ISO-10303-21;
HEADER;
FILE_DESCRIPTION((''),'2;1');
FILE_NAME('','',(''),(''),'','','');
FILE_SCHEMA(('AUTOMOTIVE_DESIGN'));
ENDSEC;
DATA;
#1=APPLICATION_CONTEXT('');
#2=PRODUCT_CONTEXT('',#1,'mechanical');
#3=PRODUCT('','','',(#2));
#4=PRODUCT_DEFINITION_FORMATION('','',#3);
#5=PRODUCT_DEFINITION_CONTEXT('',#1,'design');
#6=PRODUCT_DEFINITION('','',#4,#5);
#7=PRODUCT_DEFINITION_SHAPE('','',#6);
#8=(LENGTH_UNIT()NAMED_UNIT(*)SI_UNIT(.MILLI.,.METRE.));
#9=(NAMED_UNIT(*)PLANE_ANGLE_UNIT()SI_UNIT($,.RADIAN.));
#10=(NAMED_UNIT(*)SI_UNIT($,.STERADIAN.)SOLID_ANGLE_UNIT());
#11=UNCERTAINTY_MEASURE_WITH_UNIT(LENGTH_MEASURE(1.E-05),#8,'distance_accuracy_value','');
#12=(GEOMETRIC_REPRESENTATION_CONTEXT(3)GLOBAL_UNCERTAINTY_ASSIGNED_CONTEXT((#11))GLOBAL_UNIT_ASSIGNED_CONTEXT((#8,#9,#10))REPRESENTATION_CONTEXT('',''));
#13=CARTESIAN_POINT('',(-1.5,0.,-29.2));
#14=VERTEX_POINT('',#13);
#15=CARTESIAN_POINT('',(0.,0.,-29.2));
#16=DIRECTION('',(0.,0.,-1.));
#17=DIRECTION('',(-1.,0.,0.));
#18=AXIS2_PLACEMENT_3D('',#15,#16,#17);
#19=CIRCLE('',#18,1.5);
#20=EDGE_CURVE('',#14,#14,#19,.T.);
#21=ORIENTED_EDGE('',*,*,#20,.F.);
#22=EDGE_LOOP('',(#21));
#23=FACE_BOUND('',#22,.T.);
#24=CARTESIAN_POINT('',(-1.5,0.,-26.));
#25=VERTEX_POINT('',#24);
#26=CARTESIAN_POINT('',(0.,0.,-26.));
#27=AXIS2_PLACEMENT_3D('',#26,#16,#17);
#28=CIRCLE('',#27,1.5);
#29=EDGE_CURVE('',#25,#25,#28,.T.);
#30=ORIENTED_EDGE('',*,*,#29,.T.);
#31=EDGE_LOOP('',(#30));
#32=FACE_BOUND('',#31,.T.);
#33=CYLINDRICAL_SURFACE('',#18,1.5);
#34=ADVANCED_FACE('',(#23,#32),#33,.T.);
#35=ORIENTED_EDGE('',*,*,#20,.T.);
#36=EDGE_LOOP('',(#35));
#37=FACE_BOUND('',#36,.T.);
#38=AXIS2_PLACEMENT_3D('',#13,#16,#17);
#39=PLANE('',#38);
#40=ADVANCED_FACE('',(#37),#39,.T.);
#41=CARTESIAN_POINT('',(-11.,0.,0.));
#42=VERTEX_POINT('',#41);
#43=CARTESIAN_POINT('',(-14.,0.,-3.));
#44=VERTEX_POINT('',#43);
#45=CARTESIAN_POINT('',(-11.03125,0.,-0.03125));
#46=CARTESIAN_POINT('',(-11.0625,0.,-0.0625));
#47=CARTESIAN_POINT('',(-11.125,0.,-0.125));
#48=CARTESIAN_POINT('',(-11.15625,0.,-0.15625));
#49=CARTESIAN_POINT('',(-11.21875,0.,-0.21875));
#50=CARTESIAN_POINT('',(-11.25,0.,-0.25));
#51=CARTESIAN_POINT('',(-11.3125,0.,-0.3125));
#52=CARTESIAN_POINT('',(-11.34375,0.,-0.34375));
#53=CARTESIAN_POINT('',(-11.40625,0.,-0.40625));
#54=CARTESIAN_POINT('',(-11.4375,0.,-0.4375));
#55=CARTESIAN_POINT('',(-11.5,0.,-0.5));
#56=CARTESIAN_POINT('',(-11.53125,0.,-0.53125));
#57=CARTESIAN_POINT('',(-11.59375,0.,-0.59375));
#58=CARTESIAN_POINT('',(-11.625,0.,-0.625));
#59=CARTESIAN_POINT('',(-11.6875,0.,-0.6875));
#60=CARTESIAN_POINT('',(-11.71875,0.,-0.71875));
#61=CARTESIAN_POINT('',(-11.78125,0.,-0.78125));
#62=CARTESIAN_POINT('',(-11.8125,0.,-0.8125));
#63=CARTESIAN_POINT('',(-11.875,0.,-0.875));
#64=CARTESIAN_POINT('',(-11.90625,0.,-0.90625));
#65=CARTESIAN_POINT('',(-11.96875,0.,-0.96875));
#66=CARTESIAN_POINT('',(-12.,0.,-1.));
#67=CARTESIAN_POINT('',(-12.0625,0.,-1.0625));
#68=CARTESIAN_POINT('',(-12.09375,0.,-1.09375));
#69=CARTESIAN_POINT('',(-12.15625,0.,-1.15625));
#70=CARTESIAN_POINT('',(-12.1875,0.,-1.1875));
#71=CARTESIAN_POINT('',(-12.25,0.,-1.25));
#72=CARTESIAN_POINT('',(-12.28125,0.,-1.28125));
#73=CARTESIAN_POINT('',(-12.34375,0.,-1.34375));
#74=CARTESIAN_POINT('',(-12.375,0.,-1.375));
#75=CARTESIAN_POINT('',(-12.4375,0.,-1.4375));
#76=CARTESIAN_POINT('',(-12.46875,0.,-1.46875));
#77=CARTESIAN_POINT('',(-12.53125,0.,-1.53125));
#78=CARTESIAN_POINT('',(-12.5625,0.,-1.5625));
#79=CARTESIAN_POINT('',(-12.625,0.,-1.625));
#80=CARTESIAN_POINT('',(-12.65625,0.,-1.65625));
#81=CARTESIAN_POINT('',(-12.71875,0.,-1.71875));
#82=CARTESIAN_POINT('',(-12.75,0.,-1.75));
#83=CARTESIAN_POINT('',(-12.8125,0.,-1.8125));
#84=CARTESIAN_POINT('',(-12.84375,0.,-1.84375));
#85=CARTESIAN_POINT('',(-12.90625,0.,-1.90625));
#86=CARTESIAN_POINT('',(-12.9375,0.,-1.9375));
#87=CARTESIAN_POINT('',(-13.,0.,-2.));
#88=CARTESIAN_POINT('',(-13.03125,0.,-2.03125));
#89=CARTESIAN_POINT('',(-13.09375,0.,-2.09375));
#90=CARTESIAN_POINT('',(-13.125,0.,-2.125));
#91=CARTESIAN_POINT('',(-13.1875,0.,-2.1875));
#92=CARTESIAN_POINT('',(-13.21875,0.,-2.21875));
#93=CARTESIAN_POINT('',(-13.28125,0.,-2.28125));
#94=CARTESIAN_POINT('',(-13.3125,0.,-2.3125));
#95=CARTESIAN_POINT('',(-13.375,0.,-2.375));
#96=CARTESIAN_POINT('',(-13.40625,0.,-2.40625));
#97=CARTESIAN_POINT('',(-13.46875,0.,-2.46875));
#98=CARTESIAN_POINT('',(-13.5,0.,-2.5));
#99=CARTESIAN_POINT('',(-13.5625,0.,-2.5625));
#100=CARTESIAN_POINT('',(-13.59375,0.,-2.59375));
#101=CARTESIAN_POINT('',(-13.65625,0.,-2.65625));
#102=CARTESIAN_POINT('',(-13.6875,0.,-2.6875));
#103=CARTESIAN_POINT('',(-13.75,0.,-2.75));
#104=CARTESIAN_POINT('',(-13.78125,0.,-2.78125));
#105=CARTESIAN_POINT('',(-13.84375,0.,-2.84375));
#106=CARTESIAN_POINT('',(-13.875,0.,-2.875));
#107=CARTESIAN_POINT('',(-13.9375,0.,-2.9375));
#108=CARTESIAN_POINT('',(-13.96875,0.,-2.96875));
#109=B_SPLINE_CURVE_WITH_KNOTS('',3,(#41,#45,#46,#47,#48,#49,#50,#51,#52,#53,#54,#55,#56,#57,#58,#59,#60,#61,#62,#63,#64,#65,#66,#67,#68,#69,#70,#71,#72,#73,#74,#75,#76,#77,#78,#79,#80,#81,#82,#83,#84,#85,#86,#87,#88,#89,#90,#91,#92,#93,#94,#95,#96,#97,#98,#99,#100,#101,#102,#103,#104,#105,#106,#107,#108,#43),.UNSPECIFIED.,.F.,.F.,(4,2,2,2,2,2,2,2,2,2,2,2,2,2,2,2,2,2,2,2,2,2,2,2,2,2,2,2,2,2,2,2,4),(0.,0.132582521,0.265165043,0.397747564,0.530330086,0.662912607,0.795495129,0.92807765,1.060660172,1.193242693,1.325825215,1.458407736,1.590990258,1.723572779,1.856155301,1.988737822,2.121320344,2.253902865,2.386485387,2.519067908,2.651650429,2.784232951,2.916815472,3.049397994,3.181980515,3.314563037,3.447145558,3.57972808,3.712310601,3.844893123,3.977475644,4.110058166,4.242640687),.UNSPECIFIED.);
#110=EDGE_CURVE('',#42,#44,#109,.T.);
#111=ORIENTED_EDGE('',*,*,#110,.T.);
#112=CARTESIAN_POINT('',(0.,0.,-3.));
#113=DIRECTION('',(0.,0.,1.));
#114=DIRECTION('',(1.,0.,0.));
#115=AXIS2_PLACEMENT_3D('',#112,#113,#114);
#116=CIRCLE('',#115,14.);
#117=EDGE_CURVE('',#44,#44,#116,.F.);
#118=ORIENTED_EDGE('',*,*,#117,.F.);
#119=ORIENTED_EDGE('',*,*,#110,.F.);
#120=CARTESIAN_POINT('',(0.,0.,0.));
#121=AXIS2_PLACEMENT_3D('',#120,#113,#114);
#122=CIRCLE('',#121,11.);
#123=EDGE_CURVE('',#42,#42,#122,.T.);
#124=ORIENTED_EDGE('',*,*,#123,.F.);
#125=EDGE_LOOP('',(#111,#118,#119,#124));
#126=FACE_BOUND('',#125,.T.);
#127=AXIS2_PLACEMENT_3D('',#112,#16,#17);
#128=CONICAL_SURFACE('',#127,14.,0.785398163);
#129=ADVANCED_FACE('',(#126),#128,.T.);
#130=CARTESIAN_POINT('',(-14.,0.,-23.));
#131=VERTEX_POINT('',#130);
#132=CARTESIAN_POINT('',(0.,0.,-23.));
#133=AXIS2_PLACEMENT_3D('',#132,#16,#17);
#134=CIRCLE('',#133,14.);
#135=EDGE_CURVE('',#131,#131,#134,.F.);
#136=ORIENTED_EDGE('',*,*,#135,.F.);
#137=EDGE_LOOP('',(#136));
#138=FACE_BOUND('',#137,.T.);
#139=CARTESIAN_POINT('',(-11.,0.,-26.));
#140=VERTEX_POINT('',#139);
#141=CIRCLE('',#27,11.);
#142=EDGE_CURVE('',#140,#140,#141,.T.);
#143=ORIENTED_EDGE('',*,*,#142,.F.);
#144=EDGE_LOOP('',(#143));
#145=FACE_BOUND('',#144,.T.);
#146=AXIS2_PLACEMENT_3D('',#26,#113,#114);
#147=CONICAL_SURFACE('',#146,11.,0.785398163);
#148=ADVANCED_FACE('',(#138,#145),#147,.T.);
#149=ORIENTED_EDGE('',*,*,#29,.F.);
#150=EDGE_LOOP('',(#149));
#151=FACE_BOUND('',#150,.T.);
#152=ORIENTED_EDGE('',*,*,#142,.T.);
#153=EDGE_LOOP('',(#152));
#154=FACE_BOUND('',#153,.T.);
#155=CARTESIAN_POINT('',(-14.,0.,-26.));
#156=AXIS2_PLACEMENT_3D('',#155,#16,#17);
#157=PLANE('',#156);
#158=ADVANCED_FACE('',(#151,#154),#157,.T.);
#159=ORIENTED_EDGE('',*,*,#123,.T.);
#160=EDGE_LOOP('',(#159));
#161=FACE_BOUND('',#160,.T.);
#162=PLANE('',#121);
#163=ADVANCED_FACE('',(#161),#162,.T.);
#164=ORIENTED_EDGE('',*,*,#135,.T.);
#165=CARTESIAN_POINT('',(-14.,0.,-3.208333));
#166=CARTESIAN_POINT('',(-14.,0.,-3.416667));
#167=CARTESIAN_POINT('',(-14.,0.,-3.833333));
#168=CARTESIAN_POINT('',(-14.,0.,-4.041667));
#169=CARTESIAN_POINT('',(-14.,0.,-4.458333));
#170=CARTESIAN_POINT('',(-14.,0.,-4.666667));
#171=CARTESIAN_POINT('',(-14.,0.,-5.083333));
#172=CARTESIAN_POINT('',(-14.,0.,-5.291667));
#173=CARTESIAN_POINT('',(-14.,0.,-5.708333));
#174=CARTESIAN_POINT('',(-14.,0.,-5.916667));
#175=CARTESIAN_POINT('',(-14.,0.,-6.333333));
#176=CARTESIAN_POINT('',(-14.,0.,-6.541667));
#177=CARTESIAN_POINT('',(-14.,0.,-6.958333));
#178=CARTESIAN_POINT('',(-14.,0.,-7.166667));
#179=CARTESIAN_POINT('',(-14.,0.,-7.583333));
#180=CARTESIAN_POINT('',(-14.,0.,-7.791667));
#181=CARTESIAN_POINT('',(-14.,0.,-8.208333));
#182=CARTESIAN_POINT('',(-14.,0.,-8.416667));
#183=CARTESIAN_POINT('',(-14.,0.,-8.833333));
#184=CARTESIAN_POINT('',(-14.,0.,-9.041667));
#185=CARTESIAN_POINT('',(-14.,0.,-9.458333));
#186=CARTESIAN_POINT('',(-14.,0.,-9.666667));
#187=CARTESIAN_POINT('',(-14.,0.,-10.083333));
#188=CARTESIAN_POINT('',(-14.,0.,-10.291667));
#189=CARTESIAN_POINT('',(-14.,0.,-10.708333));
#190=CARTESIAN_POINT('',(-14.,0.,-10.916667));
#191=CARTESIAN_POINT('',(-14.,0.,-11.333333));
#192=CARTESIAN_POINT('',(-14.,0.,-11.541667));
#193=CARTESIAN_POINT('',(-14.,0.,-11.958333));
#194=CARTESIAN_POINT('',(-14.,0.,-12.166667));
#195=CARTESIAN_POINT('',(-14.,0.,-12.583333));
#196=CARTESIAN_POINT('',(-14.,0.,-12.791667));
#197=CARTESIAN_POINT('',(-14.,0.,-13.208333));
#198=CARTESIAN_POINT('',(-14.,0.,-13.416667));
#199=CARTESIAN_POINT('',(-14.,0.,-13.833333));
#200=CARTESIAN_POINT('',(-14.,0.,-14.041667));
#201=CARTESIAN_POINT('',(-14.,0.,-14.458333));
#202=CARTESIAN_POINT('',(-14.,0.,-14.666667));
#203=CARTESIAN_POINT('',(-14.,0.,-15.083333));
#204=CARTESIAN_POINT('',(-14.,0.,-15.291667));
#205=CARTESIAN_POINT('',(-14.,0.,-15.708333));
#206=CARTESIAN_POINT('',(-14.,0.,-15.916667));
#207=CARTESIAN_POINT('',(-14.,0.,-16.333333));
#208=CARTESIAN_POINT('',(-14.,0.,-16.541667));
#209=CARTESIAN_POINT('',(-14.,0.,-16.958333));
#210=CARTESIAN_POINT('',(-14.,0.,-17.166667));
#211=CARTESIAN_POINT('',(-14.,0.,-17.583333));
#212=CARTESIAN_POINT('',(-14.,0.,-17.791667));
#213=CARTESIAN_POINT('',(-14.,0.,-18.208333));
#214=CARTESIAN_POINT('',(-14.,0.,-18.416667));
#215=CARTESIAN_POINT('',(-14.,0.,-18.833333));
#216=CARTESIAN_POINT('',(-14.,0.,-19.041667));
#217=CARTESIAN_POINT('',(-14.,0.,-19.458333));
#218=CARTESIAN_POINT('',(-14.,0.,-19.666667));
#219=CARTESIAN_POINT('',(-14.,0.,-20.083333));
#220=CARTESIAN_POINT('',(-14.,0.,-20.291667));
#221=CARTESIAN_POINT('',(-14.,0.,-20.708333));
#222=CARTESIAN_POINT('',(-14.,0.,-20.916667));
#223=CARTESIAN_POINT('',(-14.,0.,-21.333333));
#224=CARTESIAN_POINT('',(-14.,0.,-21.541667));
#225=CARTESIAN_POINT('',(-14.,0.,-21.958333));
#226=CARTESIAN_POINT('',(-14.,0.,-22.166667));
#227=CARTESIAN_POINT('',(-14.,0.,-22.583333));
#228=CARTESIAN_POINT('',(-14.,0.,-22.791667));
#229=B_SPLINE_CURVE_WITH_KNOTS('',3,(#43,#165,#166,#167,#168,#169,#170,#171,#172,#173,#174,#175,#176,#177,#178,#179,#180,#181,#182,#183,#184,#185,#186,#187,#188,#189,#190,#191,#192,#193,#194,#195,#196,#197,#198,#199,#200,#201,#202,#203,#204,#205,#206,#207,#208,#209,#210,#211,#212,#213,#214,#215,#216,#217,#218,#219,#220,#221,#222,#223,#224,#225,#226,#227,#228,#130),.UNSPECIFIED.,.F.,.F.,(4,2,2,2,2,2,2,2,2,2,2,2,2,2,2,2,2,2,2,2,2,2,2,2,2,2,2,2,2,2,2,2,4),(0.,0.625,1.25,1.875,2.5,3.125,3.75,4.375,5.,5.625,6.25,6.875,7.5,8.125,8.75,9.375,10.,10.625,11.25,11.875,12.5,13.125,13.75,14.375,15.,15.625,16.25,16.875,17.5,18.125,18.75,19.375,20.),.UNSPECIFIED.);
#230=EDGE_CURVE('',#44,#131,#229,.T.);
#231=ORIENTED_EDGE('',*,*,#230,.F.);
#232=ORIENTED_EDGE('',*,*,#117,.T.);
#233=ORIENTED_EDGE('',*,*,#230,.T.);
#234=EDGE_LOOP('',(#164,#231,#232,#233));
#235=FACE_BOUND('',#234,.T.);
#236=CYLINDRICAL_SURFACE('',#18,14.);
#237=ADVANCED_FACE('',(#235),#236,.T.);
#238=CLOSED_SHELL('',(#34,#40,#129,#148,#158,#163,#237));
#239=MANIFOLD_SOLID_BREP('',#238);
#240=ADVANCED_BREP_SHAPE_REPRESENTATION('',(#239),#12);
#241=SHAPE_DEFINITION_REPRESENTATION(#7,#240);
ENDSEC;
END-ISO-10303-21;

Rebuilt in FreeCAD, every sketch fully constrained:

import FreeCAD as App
import Part
import Sketcher


def edges_at(feature, points):
    """Names of the edges that pass closest to the given points."""
    edges = feature.Shape.Edges
    near = lambda p: min(range(len(edges)), key=lambda i: edges[i].distToShape(Part.Vertex(*p))[0])
    return sorted({f"Edge{near(p) + 1}" for p in points})

doc = App.newDocument("Part")
body = doc.addObject("PartDesign::Body", "Body")

# Sketch on XZ plane
sketch1 = body.newObject("Sketcher::SketchObject", "Sketch")
sketch1.AttachmentSupport = (doc.getObject("XZ_Plane"), [""])
sketch1.MapMode = "FlatFace"
sketch1.addGeometry(Part.LineSegment(App.Vector(-14, 0, 0), App.Vector(0, 0, 0)), False)
sketch1.addGeometry(Part.LineSegment(App.Vector(0, 0, 0), App.Vector(0, -29.2, 0)), False)
sketch1.addGeometry(Part.LineSegment(App.Vector(0, -29.2, 0), App.Vector(-1.5, -29.2, 0)), False)
sketch1.addGeometry(Part.LineSegment(App.Vector(-1.5, -29.2, 0), App.Vector(-1.5, -26, 0)), False)
sketch1.addGeometry(Part.LineSegment(App.Vector(-1.5, -26, 0), App.Vector(-14, -26, 0)), False)
sketch1.addGeometry(Part.LineSegment(App.Vector(-14, -26, 0), App.Vector(-14, 0, 0)), False)
sketch1.addConstraint(Sketcher.Constraint("Coincident", 0, 2, 1, 1))
sketch1.addConstraint(Sketcher.Constraint("Coincident", 1, 2, 2, 1))
sketch1.addConstraint(Sketcher.Constraint("Coincident", 2, 2, 3, 1))
sketch1.addConstraint(Sketcher.Constraint("Coincident", 3, 2, 4, 1))
sketch1.addConstraint(Sketcher.Constraint("Coincident", 4, 2, 5, 1))
sketch1.addConstraint(Sketcher.Constraint("Coincident", 5, 2, 0, 1))
sketch1.addConstraint(Sketcher.Constraint("Horizontal", 0))
sketch1.addConstraint(Sketcher.Constraint("Vertical", 1))
sketch1.addConstraint(Sketcher.Constraint("Horizontal", 2))
sketch1.addConstraint(Sketcher.Constraint("Vertical", 3))
sketch1.addConstraint(Sketcher.Constraint("Horizontal", 4))
sketch1.addConstraint(Sketcher.Constraint("Vertical", 5))
sketch1.addConstraint(Sketcher.Constraint("Coincident", 0, 2, -1, 1))
sketch1.addConstraint(Sketcher.Constraint("DistanceX", 0, 1, 0, 2, 14.0))
sketch1.addConstraint(Sketcher.Constraint("DistanceY", 5, 1, 5, 2, 26.0))
sketch1.addConstraint(Sketcher.Constraint("DistanceX", 2, 2, 2, 1, 1.5))
sketch1.addConstraint(Sketcher.Constraint("DistanceY", 1, 2, 1, 1, 29.2))
revolution = body.newObject("PartDesign::Revolution", "Revolution")
revolution.Profile = sketch1
revolution.ReferenceAxis = (sketch1, ["V_Axis"])
revolution.Angle = 360
doc.recompute()

chamfer = body.newObject("PartDesign::Chamfer", "Chamfer")
chamfer.Base = (revolution, edges_at(revolution, [(14, 0, -26), (14, 0, 0)]))
chamfer.Size = 3

doc.recompute()
